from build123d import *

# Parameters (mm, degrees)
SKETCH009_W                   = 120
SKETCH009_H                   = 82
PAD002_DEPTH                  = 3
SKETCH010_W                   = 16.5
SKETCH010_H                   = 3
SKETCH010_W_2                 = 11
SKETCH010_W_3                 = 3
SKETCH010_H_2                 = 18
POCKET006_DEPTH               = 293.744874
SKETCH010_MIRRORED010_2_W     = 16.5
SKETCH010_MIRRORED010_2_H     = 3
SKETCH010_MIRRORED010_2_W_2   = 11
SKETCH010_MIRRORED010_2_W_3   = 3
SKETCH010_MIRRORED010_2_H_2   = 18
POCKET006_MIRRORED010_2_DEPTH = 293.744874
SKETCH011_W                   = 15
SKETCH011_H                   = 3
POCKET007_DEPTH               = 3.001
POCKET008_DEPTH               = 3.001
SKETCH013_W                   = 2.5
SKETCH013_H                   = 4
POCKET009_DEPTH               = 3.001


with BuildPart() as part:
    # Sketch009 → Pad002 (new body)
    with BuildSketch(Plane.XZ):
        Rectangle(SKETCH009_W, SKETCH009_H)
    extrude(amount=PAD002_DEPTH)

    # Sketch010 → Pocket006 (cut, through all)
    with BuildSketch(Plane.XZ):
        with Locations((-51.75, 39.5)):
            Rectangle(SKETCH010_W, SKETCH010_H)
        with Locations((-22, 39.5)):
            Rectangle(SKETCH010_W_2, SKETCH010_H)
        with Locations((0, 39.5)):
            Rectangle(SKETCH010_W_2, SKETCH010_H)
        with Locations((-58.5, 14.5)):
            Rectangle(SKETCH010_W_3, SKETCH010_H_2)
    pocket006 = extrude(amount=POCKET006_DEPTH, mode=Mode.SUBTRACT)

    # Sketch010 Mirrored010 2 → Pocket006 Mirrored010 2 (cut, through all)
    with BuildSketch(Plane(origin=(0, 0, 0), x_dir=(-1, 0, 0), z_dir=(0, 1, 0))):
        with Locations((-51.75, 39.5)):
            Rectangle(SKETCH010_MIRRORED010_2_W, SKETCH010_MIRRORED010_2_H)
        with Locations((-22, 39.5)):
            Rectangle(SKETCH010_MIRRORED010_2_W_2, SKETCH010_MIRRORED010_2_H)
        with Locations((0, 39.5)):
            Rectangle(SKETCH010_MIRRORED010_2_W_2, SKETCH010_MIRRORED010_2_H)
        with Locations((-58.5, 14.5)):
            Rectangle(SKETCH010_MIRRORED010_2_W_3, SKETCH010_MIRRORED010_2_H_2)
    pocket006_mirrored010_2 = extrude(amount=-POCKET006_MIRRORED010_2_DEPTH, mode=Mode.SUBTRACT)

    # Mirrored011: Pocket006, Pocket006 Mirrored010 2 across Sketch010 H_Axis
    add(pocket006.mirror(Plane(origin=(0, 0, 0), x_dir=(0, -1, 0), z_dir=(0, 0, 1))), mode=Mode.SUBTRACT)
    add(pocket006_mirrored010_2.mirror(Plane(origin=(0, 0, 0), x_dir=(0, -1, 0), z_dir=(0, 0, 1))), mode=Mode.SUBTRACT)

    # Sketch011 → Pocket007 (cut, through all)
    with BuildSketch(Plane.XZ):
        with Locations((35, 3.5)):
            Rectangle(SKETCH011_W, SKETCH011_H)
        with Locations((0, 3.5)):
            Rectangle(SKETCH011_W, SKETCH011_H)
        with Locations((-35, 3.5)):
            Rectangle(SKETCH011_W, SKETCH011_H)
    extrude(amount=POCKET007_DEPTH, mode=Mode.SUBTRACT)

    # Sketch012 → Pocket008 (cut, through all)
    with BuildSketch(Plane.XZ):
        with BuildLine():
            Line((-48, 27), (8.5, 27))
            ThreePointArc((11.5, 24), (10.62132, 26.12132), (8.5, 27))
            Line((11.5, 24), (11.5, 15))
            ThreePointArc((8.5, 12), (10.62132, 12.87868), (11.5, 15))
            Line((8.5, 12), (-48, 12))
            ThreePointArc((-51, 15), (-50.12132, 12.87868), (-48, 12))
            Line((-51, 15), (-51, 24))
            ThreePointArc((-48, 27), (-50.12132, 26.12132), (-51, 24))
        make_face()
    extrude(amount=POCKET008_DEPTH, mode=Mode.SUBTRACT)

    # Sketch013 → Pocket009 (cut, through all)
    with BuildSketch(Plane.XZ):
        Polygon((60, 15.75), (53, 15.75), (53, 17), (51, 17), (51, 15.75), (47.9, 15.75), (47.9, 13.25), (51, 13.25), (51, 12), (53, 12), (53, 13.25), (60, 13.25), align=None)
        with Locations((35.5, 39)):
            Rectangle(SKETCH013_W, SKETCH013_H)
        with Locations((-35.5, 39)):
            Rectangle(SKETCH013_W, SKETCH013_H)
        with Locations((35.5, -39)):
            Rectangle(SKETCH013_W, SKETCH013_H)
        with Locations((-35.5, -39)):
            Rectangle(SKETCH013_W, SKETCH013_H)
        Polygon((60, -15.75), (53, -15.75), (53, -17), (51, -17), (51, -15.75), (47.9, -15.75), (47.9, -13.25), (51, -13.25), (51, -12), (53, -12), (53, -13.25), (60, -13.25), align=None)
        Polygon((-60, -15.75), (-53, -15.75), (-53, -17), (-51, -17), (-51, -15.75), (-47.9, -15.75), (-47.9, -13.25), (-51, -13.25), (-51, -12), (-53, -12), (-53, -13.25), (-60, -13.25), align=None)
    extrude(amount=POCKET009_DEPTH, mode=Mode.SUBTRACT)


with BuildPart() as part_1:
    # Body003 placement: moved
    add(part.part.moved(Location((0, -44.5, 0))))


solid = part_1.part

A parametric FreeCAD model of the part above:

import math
import FreeCAD as App
import Part
import Sketcher
from FreeCAD import Vector
Q = App.Units.Quantity


def add_polygon(sketch, points):
    """Adds a closed chain of lines whose ends are joined by coincident constraints."""
    first, n = sketch.GeometryCount, len(points)
    for a, b in zip(points, points[1:] + points[:1]):
        sketch.addGeometry(Part.LineSegment(App.Vector(*a, 0), App.Vector(*b, 0)), False)
    for i in range(n):
        sketch.addConstraint(Sketcher.Constraint("Coincident", first + i, 2, first + (i + 1) % n, 1))

doc = App.newDocument("Part")
body = doc.addObject("PartDesign::Body", "Body")

# Sketch on XZ plane
sketch1 = body.newObject("Sketcher::SketchObject", "Sketch")
sketch1.AttachmentSupport = (doc.getObject("XZ_Plane"), [""])
sketch1.MapMode = "FlatFace"
add_polygon(sketch1, [(-60, 41), (-60, -41), (60, -41), (60, 41)])  # lines 0-3
sketch1.addConstraint([
    Sketcher.Constraint("Vertical", 0),
    Sketcher.Constraint("Horizontal", 1),
    Sketcher.Constraint("Vertical", 2),
    Sketcher.Constraint("Horizontal", 3),
    Sketcher.Constraint("Symmetric", 0, 2, 2, 2, -1, 1),
    Sketcher.Constraint("DistanceX", 1, 1, 1, 2, Q("120 mm")),
    Sketcher.Constraint("DistanceY", 0, 2, 0, 1, Q("82 mm")),
])
pad1 = body.newObject("PartDesign::Pad", "Pad")
pad1.Profile = sketch1
pad1.Length = 3

# Sketch on XZ plane
sketch2 = body.newObject("Sketcher::SketchObject", "Sketch001")
sketch2.AttachmentSupport = (doc.getObject("XZ_Plane"), [""])
sketch2.MapMode = "FlatFace"
add_polygon(sketch2, [(-60, 41), (-60, 38), (-43.5, 38), (-43.5, 41)])  # lines 0-3
add_polygon(sketch2, [(-27.5, 41), (-27.5, 38), (-16.5, 38), (-16.5, 41)])  # lines 4-7
add_polygon(sketch2, [(-5.5, 41), (-5.5, 38), (5.5, 38), (5.5, 41)])  # lines 8-11
add_polygon(sketch2, [(-60, 23.5), (-60, 5.5), (-57, 5.5), (-57, 23.5)])  # lines 12-15
sketch2.addConstraint([
    Sketcher.Constraint("Vertical", 0),
    Sketcher.Constraint("Horizontal", 1),
    Sketcher.Constraint("Vertical", 2),
    Sketcher.Constraint("Horizontal", 3),
    Sketcher.Constraint("Vertical", 4),
    Sketcher.Constraint("Horizontal", 5),
    Sketcher.Constraint("Vertical", 6),
    Sketcher.Constraint("Horizontal", 7),
    Sketcher.Constraint("Vertical", 8),
    Sketcher.Constraint("Horizontal", 9),
    Sketcher.Constraint("Vertical", 10),
    Sketcher.Constraint("Horizontal", 11),
    Sketcher.Constraint("Vertical", 12),
    Sketcher.Constraint("Horizontal", 13),
    Sketcher.Constraint("Vertical", 14),
    Sketcher.Constraint("Horizontal", 15),
    Sketcher.Constraint("Horizontal", 1, 2, 4, 2),
    Sketcher.Constraint("Horizontal", 3, 2, 6, 2),
    Sketcher.Constraint("Horizontal", 5, 2, 8, 2),
    Sketcher.Constraint("Horizontal", 7, 2, 10, 2),
    Sketcher.Constraint("Vertical", 3, 2, 12, 2),
    Sketcher.Constraint("Equal", 7, 9),
    Sketcher.Constraint("Equal", 15, 0),
    Sketcher.Constraint("DistanceX", 5, 1, 5, 2, Q("11 mm")),
    Sketcher.Constraint("DistanceX", 13, 1, 13, 2, Q("3 mm")),
    Sketcher.Constraint("DistanceY", 12, 2, 12, 1, Q("18 mm")),
    Sketcher.Constraint("DistanceX", 1, 1, 1, 2, Q("16.5 mm")),
    Sketcher.Constraint("DistanceX", 0, 2, -1, 1, Q("60 mm")),
    Sketcher.Constraint("DistanceY", -1, 1, 0, 2, Q("38 mm")),
    Sketcher.Constraint("DistanceX", 1, 2, 4, 2, Q("16 mm")),
    Sketcher.Constraint("DistanceX", 5, 2, 8, 2, Q("11 mm")),
    Sketcher.Constraint("DistanceY", -1, 1, 12, 2, Q("5.5 mm")),
])
pocket1 = body.newObject("PartDesign::Pocket", "Pocket")
pocket1.Profile = sketch2
pocket1.Type = "ThroughAll"
pocket1.Reversed = True

# Sketch on XZ plane
sketch3 = body.newObject("Sketcher::SketchObject", "Sketch002")
sketch3.AttachmentSupport = (doc.getObject("XZ_Plane"), [""])
sketch3.MapMode = "FlatFace"
add_polygon(sketch3, [(60, 41), (60, 38), (43.5, 38), (43.5, 41)])  # lines 0-3
add_polygon(sketch3, [(27.5, 41), (27.5, 38), (16.5, 38), (16.5, 41)])  # lines 4-7
add_polygon(sketch3, [(5.5, 41), (5.5, 38), (-5.5, 38), (-5.5, 41)])  # lines 8-11
add_polygon(sketch3, [(60, 23.5), (60, 5.5), (57, 5.5), (57, 23.5)])  # lines 12-15
sketch3.addConstraint([
    Sketcher.Constraint("Vertical", 0),
    Sketcher.Constraint("Horizontal", 1),
    Sketcher.Constraint("Vertical", 2),
    Sketcher.Constraint("Horizontal", 3),
    Sketcher.Constraint("Vertical", 4),
    Sketcher.Constraint("Horizontal", 5),
    Sketcher.Constraint("Vertical", 6),
    Sketcher.Constraint("Horizontal", 7),
    Sketcher.Constraint("Vertical", 8),
    Sketcher.Constraint("Horizontal", 9),
    Sketcher.Constraint("Vertical", 10),
    Sketcher.Constraint("Horizontal", 11),
    Sketcher.Constraint("Vertical", 12),
    Sketcher.Constraint("Horizontal", 13),
    Sketcher.Constraint("Vertical", 14),
    Sketcher.Constraint("Horizontal", 15),
    Sketcher.Constraint("Horizontal", 1, 2, 4, 2),
    Sketcher.Constraint("Horizontal", 3, 2, 6, 2),
    Sketcher.Constraint("Horizontal", 5, 2, 8, 2),
    Sketcher.Constraint("Horizontal", 7, 2, 10, 2),
    Sketcher.Constraint("Vertical", 3, 2, 12, 2),
    Sketcher.Constraint("Equal", 7, 9),
    Sketcher.Constraint("Equal", 15, 0),
    Sketcher.Constraint("DistanceX", 5, 2, 5, 1, Q("11 mm")),
    Sketcher.Constraint("DistanceX", 13, 2, 13, 1, Q("3 mm")),
    Sketcher.Constraint("DistanceY", 12, 2, 12, 1, Q("18 mm")),
    Sketcher.Constraint("DistanceX", 1, 2, 1, 1, Q("16.5 mm")),
    Sketcher.Constraint("DistanceX", -1, 1, 0, 2, Q("60 mm")),
    Sketcher.Constraint("DistanceY", -1, 1, 0, 2, Q("38 mm")),
    Sketcher.Constraint("DistanceX", 4, 2, 1, 2, Q("16 mm")),
    Sketcher.Constraint("DistanceX", 8, 2, 5, 2, Q("11 mm")),
    Sketcher.Constraint("DistanceY", -1, 1, 12, 2, Q("5.5 mm")),
])
pocket2 = body.newObject("PartDesign::Pocket", "Pocket001")
pocket2.Profile = sketch3
pocket2.Type = "ThroughAll"
pocket2.Reversed = True
doc.recompute()

mirrored = body.newObject("PartDesign::Mirrored", "Mirrored")
mirrored.Originals = [pocket1, pocket2]
mirrored.MirrorPlane = (doc.getObject("XY_Plane"), [""])
body.Tip = mirrored

# Sketch on XZ plane
sketch4 = body.newObject("Sketcher::SketchObject", "Sketch003")
sketch4.AttachmentSupport = (doc.getObject("XZ_Plane"), [""])
sketch4.MapMode = "FlatFace"
add_polygon(sketch4, [(27.5, 5), (27.5, 2), (42.5, 2), (42.5, 5)])  # lines 0-3
add_polygon(sketch4, [(-7.5, 5), (-7.5, 2), (7.5, 2), (7.5, 5)])  # lines 4-7
add_polygon(sketch4, [(-42.5, 5), (-42.5, 2), (-27.5, 2), (-27.5, 5)])  # lines 8-11
sketch4.addConstraint([
    Sketcher.Constraint("Vertical", 0),
    Sketcher.Constraint("Horizontal", 1),
    Sketcher.Constraint("Vertical", 2),
    Sketcher.Constraint("Horizontal", 3),
    Sketcher.Constraint("Vertical", 4),
    Sketcher.Constraint("Horizontal", 5),
    Sketcher.Constraint("Vertical", 6),
    Sketcher.Constraint("Horizontal", 7),
    Sketcher.Constraint("Vertical", 8),
    Sketcher.Constraint("Horizontal", 9),
    Sketcher.Constraint("Vertical", 10),
    Sketcher.Constraint("Horizontal", 11),
    Sketcher.Constraint("Symmetric", 1, 2, 8, 2, -2),
    Sketcher.Constraint("Symmetric", 3, 2, 10, 2, -2),
    Sketcher.Constraint("Horizontal", 1, 2, 4, 2),
    Sketcher.Constraint("Horizontal", 3, 2, 6, 2),
    Sketcher.Constraint("Equal", 3, 5),
    Sketcher.Constraint("DistanceX", 1, 1, 1, 2, Q("15 mm")),
    Sketcher.Constraint("DistanceY", 0, 2, 0, 1, Q("3 mm")),
    Sketcher.Constraint("DistanceY", -1, 1, 0, 2, Q("2 mm")),
    Sketcher.Constraint("DistanceX", 4, 2, 0, 2, Q("35 mm")),
    Sketcher.Constraint("DistanceX", 8, 2, 4, 2, Q("35 mm")),
])
pocket3 = body.newObject("PartDesign::Pocket", "Pocket002")
pocket3.Profile = sketch4
pocket3.Type = "ThroughAll"
pocket3.Reversed = True

# Sketch on XZ plane
sketch5 = body.newObject("Sketcher::SketchObject", "Sketch004")
sketch5.AttachmentSupport = (doc.getObject("XZ_Plane"), [""])
sketch5.MapMode = "FlatFace"
sketch5.addGeometry([
    Part.LineSegment(Vector(8.5, 27, 0), Vector(-48, 27, 0)),  # 0
    Part.ArcOfCircle(Part.Circle(Vector(-48, 24, 0), Vector(0, 0, 1), 3), math.radians(90), math.radians(180)),  # 1
    Part.LineSegment(Vector(-51, 24, 0), Vector(-51, 15, 0)),  # 2
    Part.ArcOfCircle(Part.Circle(Vector(-48, 15, 0), Vector(0, 0, 1), 3), math.radians(-180), math.radians(-90)),  # 3
    Part.LineSegment(Vector(-48, 12, 0), Vector(8.5, 12, 0)),  # 4
    Part.ArcOfCircle(Part.Circle(Vector(8.5, 15, 0), Vector(0, 0, 1), 3), math.radians(-90), math.radians(0)),  # 5
    Part.LineSegment(Vector(11.5, 15, 0), Vector(11.5, 24, 0)),  # 6
    Part.ArcOfCircle(Part.Circle(Vector(8.5, 24, 0), Vector(0, 0, 1), 3), math.radians(0), math.radians(90)),  # 7
], False)
sketch5.addConstraint([
    Sketcher.Constraint("Tangent", 0, 2, 1, 1),
    Sketcher.Constraint("Tangent", 1, 2, 2, 1),
    Sketcher.Constraint("Tangent", 2, 2, 3, 1),
    Sketcher.Constraint("Tangent", 3, 2, 4, 1),
    Sketcher.Constraint("Tangent", 4, 2, 5, 1),
    Sketcher.Constraint("Tangent", 5, 2, 6, 1),
    Sketcher.Constraint("Tangent", 6, 2, 7, 1),
    Sketcher.Constraint("Tangent", 7, 2, 0, 1),
    Sketcher.Constraint("Horizontal", 0),
    Sketcher.Constraint("Vertical", 2),
    Sketcher.Constraint("Horizontal", 4),
    Sketcher.Constraint("Vertical", 6),
    Sketcher.Constraint("Equal", 1, 3),
    Sketcher.Constraint("Equal", 3, 5),
    Sketcher.Constraint("Equal", 5, 7),
    Sketcher.Constraint("Radius", 1, Q("3.000001 mm")),
    Sketcher.Constraint("DistanceY", 2, 2, 2, 1, Q("9 mm")),
    Sketcher.Constraint("DistanceX", 0, 2, 0, 1, Q("56.5 mm")),
    Sketcher.Constraint("DistanceX", 1, 3, -1, 1, Q("47.999999 mm")),
    Sketcher.Constraint("DistanceY", -1, 1, 1, 3, Q("23.999999 mm")),
])
pocket4 = body.newObject("PartDesign::Pocket", "Pocket003")
pocket4.Profile = sketch5
pocket4.Type = "ThroughAll"
pocket4.Reversed = True

# Sketch on XZ plane
sketch6 = body.newObject("Sketcher::SketchObject", "Sketch005")
sketch6.AttachmentSupport = (doc.getObject("XZ_Plane"), [""])
sketch6.MapMode = "FlatFace"
add_polygon(sketch6, [(60, 15.8), (53, 15.8), (53, 17), (51, 17), (51, 15.8), (47.9, 15.8), (47.9, 13.2), (51, 13.2), (51, 12), (53, 12), (53, 13.2), (60, 13.2)])  # lines 0-11
add_polygon(sketch6, [(34.2, 41), (34.2, 37), (36.8, 37), (36.8, 41)])  # lines 12-15
add_polygon(sketch6, [(-36.8, 41), (-36.8, 37), (-34.2, 37), (-34.2, 41)])  # lines 16-19
add_polygon(sketch6, [(34.2, -37), (34.2, -41), (36.8, -41), (36.8, -37)])  # lines 20-23
add_polygon(sketch6, [(-36.8, -37), (-36.8, -41), (-34.2, -41), (-34.2, -37)])  # lines 24-27
add_polygon(sketch6, [(53, -15.8), (60, -15.8), (60, -13.2), (53, -13.2), (53, -12), (51, -12), (51, -13.2), (47.9, -13.2), (47.9, -15.8), (51, -15.8), (51, -17), (53, -17)])  # lines 28-39
add_polygon(sketch6, [(-60, -15.8), (-53, -15.8), (-53, -17), (-51, -17), (-51, -15.8), (-47.9, -15.8), (-47.9, -13.2), (-51, -13.2), (-51, -12), (-53, -12), (-53, -13.2), (-60, -13.2)])  # lines 40-51
sketch6.addConstraint([
    Sketcher.Constraint("Horizontal", 0),
    Sketcher.Constraint("Vertical", 1),
    Sketcher.Constraint("Horizontal", 2),
    Sketcher.Constraint("Vertical", 3),
    Sketcher.Constraint("Horizontal", 4),
    Sketcher.Constraint("Vertical", 5),
    Sketcher.Constraint("Horizontal", 6),
    Sketcher.Constraint("Vertical", 7),
    Sketcher.Constraint("Horizontal", 8),
    Sketcher.Constraint("Vertical", 9),
    Sketcher.Constraint("Horizontal", 10),
    Sketcher.Constraint("Vertical", 11),
    Sketcher.Constraint("Vertical", 12),
    Sketcher.Constraint("Horizontal", 13),
    Sketcher.Constraint("Vertical", 14),
    Sketcher.Constraint("Horizontal", 15),
    Sketcher.Constraint("Vertical", 16),
    Sketcher.Constraint("Horizontal", 17),
    Sketcher.Constraint("Vertical", 18),
    Sketcher.Constraint("Horizontal", 19),
    Sketcher.Constraint("Vertical", 20),
    Sketcher.Constraint("Horizontal", 21),
    Sketcher.Constraint("Vertical", 22),
    Sketcher.Constraint("Horizontal", 23),
    Sketcher.Constraint("Vertical", 24),
    Sketcher.Constraint("Horizontal", 25),
    Sketcher.Constraint("Vertical", 26),
    Sketcher.Constraint("Horizontal", 27),
    Sketcher.Constraint("Horizontal", 28),
    Sketcher.Constraint("Vertical", 29),
    Sketcher.Constraint("Horizontal", 30),
    Sketcher.Constraint("Vertical", 31),
    Sketcher.Constraint("Horizontal", 32),
    Sketcher.Constraint("Vertical", 33),
    Sketcher.Constraint("Horizontal", 34),
    Sketcher.Constraint("Vertical", 35),
    Sketcher.Constraint("Horizontal", 36),
    Sketcher.Constraint("Vertical", 37),
    Sketcher.Constraint("Horizontal", 38),
    Sketcher.Constraint("Vertical", 39),
    Sketcher.Constraint("Horizontal", 40),
    Sketcher.Constraint("Vertical", 41),
    Sketcher.Constraint("Horizontal", 42),
    Sketcher.Constraint("Vertical", 43),
    Sketcher.Constraint("Horizontal", 44),
    Sketcher.Constraint("Vertical", 45),
    Sketcher.Constraint("Horizontal", 46),
    Sketcher.Constraint("Vertical", 47),
    Sketcher.Constraint("Horizontal", 48),
    Sketcher.Constraint("Vertical", 49),
    Sketcher.Constraint("Horizontal", 50),
    Sketcher.Constraint("Vertical", 51),
    Sketcher.Constraint("Symmetric", 18, 2, 20, 2, -1, 1),
    Sketcher.Constraint("Symmetric", 16, 2, 22, 2, -1, 1),
    Sketcher.Constraint("Symmetric", 14, 2, 24, 2, -1, 1),
    Sketcher.Constraint("Symmetric", 12, 2, 26, 2, -1, 1),
    Sketcher.Constraint("Symmetric", 0, 2, 40, 2, -1, 1),
    Sketcher.Constraint("Symmetric", 2, 2, 42, 2, -1, 1),
    Sketcher.Constraint("Symmetric", 4, 2, 44, 2, -1, 1),
    Sketcher.Constraint("Symmetric", 6, 2, 46, 2, -1, 1),
    Sketcher.Constraint("Symmetric", 8, 2, 48, 2, -1, 1),
    Sketcher.Constraint("Symmetric", 10, 2, 50, 2, -1, 1),
    Sketcher.Constraint("Symmetric", 13, 2, 16, 2, -2),
    Sketcher.Constraint("Symmetric", 15, 2, 18, 2, -2),
    Sketcher.Constraint("Symmetric", 39, 2, 40, 2, -2),
    Sketcher.Constraint("Symmetric", 37, 2, 42, 2, -2),
    Sketcher.Constraint("Symmetric", 35, 2, 44, 2, -2),
    Sketcher.Constraint("Symmetric", 33, 2, 46, 2, -2),
    Sketcher.Constraint("Symmetric", 31, 2, 48, 2, -2),
    Sketcher.Constraint("Symmetric", 29, 2, 50, 2, -2),
    Sketcher.Constraint("Horizontal", 0, 2, 3, 2),
    Sketcher.Constraint("Horizontal", 6, 2, 9, 2),
    Sketcher.Constraint("Vertical", 3, 2, 6, 2),
    Sketcher.Constraint("Vertical", 1, 2, 8, 2),
    Sketcher.Constraint("Equal", 27, 5),
    Sketcher.Constraint("Equal", 3, 7),
    Sketcher.Constraint("DistanceX", 0, 2, 0, 1, Q("7 mm")),
    Sketcher.Constraint("DistanceX", 2, 2, 2, 1, Q("2 mm")),
    Sketcher.Constraint("DistanceY", 12, 2, 12, 1, Q("4 mm")),
    Sketcher.Constraint("DistanceX", 4, 2, 4, 1, Q("3.1 mm")),
    Sketcher.Constraint("DistanceX", 13, 1, 13, 2, Q("2.5 mm")),
    Sketcher.Constraint("DistanceX", -1, 1, 0, 2, Q("53 mm")),
    Sketcher.Constraint("DistanceY", -1, 1, 1, 2, Q("17 mm")),
    Sketcher.Constraint("DistanceY", -1, 1, 7, 2, Q("12 mm")),
    Sketcher.Constraint("DistanceY", -1, 1, 12, 2, Q("37 mm")),
    Sketcher.Constraint("DistanceX", 16, 2, 12, 2, Q("71 mm")),
])
pocket5 = body.newObject("PartDesign::Pocket", "Pocket004")
pocket5.Profile = sketch6
pocket5.Type = "ThroughAll"
pocket5.Reversed = True
body2 = doc.addObject("PartDesign::Body", "Body001")
doc.recompute()

body.Placement = App.Placement(Vector(0, -44.5, 0), App.Rotation(Vector(0, 0, 1), 0))
boolean = body2.newObject("PartDesign::Boolean", "Boolean")
boolean.Type = "Fuse"
boolean.addObjects([body])

doc.recompute()
